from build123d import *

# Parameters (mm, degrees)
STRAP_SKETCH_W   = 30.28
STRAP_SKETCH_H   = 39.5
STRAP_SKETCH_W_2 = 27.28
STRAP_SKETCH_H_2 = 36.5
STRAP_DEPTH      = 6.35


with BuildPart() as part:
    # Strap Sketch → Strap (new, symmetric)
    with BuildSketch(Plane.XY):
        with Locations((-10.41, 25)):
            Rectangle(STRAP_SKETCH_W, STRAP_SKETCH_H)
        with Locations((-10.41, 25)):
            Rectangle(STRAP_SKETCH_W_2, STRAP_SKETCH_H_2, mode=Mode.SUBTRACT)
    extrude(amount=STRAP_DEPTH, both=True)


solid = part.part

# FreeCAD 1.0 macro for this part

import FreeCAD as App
import Part
import Sketcher


def add_polygon(sketch, points):
    """Adds a closed chain of lines whose ends are joined by coincident constraints."""
    first, n = sketch.GeometryCount, len(points)
    for a, b in zip(points, points[1:] + points[:1]):
        sketch.addGeometry(Part.LineSegment(App.Vector(*a, 0), App.Vector(*b, 0)), False)
    for i in range(n):
        sketch.addConstraint(Sketcher.Constraint("Coincident", first + i, 2, first + (i + 1) % n, 1))

doc = App.newDocument("Part")
params = doc.addObject("Spreadsheet::Sheet", "Params")
for row, (alias, value) in enumerate([
    ("sketch1_height", "39.5 mm"),
    ("sketch1_height2", "36.5 mm"),
    ("sketch1_width", "30.28 mm"),
    ("sketch1_width2", "27.28 mm"),
    ("pad1_length", "12.7 mm"),
], start=1):
    params.set(f"A{row}", alias)
    params.set(f"B{row}", "=" + value)
    params.setAlias(f"B{row}", alias)

body = doc.addObject("PartDesign::Body", "Body")

sketch1 = body.newObject("Sketcher::SketchObject", "Sketch")
sketch1.AttachmentSupport = (doc.getObject("XY_Plane"), [""])
sketch1.MapMode = "FlatFace"
add_polygon(sketch1, [(-26, 45), (-26, 5), (5, 5), (5, 45)])
add_polygon(sketch1, [(3, 7), (-24, 7), (-24, 43), (3, 43)])
sketch1.addConstraint([
    Sketcher.Constraint("Vertical", 0),
    Sketcher.Constraint("Horizontal", 1),
    Sketcher.Constraint("Vertical", 2),
    Sketcher.Constraint("Horizontal", 3),
    Sketcher.Constraint("Horizontal", 4),
    Sketcher.Constraint("Vertical", 5),
    Sketcher.Constraint("Horizontal", 6),
    Sketcher.Constraint("Vertical", 7),
    Sketcher.Constraint("DistanceY", 0, 2, 0, 1, 39.5),
    Sketcher.Constraint("DistanceY", 5, 1, 5, 2, 36.5),
    Sketcher.Constraint("DistanceY", 4, 2, 3, 2, 38.0),
    Sketcher.Constraint("DistanceX", 1, 1, 1, 2, 30.28),
    Sketcher.Constraint("DistanceX", 4, 2, 4, 1, 27.28),
    Sketcher.Constraint("DistanceX", 0, 2, 4, 2, 1.5),
    Sketcher.Constraint("DistanceX", 0, 2, -1, 1, 25.55),
    Sketcher.Constraint("DistanceY", -1, 1, 0, 2, 5.25),
])
sketch1.setExpression("Constraints[16]", "Params.sketch1_height")
sketch1.setExpression("Constraints[17]", "Params.sketch1_height2")
sketch1.setExpression("Constraints[19]", "Params.sketch1_width")
sketch1.setExpression("Constraints[20]", "Params.sketch1_width2")
pad1 = body.newObject("PartDesign::Pad", "Pad")
pad1.Profile = sketch1
pad1.setExpression("Length", "Params.pad1_length")
pad1.Midplane = True

doc.recompute()
